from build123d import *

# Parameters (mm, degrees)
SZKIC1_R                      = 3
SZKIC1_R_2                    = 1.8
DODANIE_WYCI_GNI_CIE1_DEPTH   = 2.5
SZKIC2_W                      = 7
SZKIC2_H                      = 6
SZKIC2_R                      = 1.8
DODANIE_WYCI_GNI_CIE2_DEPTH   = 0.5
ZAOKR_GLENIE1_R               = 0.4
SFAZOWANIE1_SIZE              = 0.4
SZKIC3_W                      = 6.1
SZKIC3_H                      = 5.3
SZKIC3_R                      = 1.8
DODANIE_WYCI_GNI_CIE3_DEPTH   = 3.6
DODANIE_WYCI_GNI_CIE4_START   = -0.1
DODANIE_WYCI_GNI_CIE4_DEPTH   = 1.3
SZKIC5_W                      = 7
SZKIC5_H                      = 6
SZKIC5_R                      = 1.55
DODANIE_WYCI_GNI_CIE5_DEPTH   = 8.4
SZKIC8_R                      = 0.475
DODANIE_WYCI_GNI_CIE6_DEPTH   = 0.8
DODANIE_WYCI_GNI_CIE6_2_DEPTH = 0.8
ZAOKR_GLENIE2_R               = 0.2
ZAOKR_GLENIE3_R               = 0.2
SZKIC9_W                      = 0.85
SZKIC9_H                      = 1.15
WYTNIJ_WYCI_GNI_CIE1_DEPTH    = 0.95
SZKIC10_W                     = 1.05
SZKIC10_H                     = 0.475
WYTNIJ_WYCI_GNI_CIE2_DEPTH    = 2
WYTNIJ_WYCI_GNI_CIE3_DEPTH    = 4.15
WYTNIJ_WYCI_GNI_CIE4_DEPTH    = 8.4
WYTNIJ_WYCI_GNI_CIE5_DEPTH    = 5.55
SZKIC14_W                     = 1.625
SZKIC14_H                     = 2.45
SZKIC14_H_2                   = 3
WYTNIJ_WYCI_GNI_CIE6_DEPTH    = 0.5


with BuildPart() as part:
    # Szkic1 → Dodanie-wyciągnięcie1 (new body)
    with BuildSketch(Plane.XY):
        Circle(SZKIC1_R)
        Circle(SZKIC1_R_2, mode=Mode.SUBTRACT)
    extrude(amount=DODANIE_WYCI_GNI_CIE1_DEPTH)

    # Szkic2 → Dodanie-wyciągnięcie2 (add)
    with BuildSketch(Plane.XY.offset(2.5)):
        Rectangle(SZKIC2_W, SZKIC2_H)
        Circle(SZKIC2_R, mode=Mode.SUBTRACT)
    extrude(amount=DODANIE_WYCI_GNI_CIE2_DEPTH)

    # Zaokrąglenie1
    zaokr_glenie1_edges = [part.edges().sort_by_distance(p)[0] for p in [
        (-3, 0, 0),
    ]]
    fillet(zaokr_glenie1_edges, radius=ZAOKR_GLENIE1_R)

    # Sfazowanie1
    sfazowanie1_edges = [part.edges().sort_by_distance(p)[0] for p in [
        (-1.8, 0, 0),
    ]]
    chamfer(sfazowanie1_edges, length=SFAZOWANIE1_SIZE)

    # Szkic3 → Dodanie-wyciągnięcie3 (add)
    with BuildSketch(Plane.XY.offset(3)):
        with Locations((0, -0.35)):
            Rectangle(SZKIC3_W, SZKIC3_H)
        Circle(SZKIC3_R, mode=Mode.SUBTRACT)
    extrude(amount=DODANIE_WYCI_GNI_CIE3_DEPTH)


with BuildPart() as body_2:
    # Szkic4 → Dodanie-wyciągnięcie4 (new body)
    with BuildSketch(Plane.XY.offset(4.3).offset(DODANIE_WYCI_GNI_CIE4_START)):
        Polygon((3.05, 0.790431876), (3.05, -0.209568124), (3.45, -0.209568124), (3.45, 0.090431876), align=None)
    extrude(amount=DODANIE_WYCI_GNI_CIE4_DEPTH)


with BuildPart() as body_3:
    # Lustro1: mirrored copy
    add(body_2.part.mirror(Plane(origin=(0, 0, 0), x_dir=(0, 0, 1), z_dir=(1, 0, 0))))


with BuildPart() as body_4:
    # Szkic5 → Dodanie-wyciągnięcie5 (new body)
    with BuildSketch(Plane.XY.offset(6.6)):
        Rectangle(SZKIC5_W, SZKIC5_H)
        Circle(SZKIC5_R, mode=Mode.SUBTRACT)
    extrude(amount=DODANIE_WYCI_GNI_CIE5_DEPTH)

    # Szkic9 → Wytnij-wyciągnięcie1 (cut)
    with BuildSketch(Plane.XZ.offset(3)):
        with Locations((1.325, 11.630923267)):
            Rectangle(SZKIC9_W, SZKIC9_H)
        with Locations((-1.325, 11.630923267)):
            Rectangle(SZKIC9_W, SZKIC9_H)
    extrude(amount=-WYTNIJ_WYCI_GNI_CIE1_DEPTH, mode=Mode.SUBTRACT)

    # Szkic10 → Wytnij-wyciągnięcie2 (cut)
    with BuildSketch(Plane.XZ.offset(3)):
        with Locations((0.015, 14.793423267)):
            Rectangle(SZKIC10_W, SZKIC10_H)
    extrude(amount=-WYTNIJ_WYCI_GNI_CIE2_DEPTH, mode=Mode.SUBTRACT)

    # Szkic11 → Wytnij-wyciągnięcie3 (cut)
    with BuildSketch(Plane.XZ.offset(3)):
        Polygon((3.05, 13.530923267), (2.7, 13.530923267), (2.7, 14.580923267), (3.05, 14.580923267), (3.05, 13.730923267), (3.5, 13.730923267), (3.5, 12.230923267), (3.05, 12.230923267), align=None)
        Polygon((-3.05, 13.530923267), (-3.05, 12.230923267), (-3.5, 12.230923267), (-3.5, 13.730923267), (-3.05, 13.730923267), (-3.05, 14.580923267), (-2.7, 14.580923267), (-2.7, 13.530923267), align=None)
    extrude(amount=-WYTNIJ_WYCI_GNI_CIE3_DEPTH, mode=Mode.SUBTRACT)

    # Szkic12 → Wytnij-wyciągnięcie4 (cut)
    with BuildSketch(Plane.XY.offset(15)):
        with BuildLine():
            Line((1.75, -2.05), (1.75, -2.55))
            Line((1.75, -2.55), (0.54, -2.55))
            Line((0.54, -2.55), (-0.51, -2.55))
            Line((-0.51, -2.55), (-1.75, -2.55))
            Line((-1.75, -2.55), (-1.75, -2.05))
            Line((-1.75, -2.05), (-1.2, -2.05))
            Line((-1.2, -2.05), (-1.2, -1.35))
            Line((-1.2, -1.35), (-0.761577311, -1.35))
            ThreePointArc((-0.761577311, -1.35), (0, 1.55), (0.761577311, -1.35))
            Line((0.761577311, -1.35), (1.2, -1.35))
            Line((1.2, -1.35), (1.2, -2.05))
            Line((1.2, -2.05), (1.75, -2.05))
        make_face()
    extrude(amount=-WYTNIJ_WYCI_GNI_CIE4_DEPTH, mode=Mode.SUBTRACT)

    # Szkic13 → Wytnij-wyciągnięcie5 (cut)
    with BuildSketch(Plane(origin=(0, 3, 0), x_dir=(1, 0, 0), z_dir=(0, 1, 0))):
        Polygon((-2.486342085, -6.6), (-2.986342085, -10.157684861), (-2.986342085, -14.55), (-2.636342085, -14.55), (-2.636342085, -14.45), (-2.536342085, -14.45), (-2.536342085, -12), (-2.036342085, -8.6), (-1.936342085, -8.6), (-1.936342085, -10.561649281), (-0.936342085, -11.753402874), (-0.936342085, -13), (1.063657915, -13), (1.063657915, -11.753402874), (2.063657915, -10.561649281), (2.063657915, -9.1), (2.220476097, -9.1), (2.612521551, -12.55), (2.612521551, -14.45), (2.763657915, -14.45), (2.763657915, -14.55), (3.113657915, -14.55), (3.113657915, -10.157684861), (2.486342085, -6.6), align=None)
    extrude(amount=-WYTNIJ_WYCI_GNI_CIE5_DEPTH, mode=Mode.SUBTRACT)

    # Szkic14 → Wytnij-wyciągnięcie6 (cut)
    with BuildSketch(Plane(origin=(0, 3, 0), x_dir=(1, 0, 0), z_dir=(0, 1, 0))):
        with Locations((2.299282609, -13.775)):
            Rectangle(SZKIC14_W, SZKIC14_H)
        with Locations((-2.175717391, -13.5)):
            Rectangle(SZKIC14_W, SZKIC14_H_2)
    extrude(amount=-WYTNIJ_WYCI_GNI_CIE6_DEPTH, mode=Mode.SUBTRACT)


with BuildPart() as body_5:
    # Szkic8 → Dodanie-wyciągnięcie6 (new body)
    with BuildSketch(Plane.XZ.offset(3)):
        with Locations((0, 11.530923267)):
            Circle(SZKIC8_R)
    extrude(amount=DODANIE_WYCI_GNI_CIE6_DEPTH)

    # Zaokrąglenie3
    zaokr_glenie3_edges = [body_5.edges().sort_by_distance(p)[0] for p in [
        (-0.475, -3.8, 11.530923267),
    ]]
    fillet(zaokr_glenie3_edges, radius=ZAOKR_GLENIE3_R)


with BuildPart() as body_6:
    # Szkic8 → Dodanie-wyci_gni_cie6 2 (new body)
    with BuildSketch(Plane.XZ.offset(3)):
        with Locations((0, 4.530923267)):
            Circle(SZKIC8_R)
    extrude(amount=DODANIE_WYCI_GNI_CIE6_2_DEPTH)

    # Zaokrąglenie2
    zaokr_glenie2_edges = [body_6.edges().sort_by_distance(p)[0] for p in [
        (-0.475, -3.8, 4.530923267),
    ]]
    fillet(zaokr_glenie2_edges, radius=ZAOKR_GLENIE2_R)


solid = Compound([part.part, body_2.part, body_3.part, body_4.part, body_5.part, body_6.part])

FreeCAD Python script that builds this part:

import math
import FreeCAD as App
import Part
import Sketcher
Q = App.Units.Quantity


def edges_at(feature, points):
    """Names of the edges that pass closest to the given points."""
    edges = feature.Shape.Edges
    near = lambda p: min(range(len(edges)), key=lambda i: edges[i].distToShape(Part.Vertex(*p))[0])
    return sorted({f"Edge{near(p) + 1}" for p in points})

doc = App.newDocument("Part")
params = doc.addObject("Spreadsheet::Sheet", "Params")
for row, (alias, value) in enumerate([
    ("sketch1_diameter", "6 mm"),
    ("sketch1_diameter2", "3.6 mm"),
    ("pad1_length", "2.5 mm"),
    ("sketch2_diameter", "3.6 mm"),
    ("sketch2_width", "7 mm"),
    ("sketch2_height", "6 mm"),
    ("pad2_length", "0.5 mm"),
    ("fillet_radius", "0.4 mm"),
    ("chamfer_size", "0.4 mm"),
    ("sketch3_diameter", "3.6 mm"),
    ("sketch3_width", "6.1 mm"),
    ("sketch3_height", "5.3 mm"),
    ("pad3_length", "3.6 mm"),
    ("sketch4_height", "1 mm"),
    ("sketch4_width", "0.4 mm"),
    ("sketch4_height2", "0.3 mm"),
    ("pad4_length", "1.3 mm"),
    ("sketch5_diameter", "3.1 mm"),
    ("sketch5_width", "7 mm"),
    ("sketch5_height", "6 mm"),
    ("pad5_length", "8.4 mm"),
    ("sketch6_width", "0.85 mm"),
    ("sketch6_height", "1.15 mm"),
    ("pocket1_length", "0.95 mm"),
    ("sketch7_width", "1.05 mm"),
    ("pocket2_length", "2 mm"),
    ("sketch8_height", "1.3 mm"),
    ("sketch8_height2", "1.5 mm"),
    ("sketch8_width", "0.35 mm"),
    ("sketch8_width2", "0.45 mm"),
    ("sketch8_height3", "0.85 mm"),
    ("pocket3_length", "4.15 mm"),
    ("sketch9_radius", "1.55 mm"),
    ("sketch9_width", "3.5 mm"),
    ("sketch9_height", "0.5 mm"),
    ("sketch9_height2", "0.7 mm"),
    ("sketch9_width2", "0.55 mm"),
    ("pocket4_length", "8.4 mm"),
    ("sketch10_width", "2 mm"),
    ("sketch10_width2", "0.1 mm"),
    ("sketch10_height", "1.9 mm"),
    ("sketch10_width3", "0.35 mm"),
    ("sketch10_height2", "2.45 mm"),
    ("pocket5_length", "5.55 mm"),
    ("sketch11_height", "3 mm"),
    ("sketch11_height2", "2.45 mm"),
    ("pocket6_length", "0.5 mm"),
    ("sketch12_diameter", "0.95 mm"),
    ("pad6_length", "0.8 mm"),
    ("fillet2_radius", "0.2 mm"),
    ("sketch13_diameter", "0.95 mm"),
    ("pad7_length", "0.8 mm"),
    ("fillet3_radius", "0.2 mm"),
], start=1):
    params.set(f"A{row}", alias)
    params.set(f"B{row}", "=" + value)
    params.setAlias(f"B{row}", alias)

body = doc.addObject("PartDesign::Body", "Body")

sketch1 = body.newObject("Sketcher::SketchObject", "Sketch")
sketch1.AttachmentSupport = (doc.getObject("XY_Plane"), [""])
sketch1.MapMode = "FlatFace"
sketch1.addGeometry([
    Part.Circle(App.Vector(0, 0, 0), App.Vector(0, 0, 1), 3),
    Part.Circle(App.Vector(0, 0, 0), App.Vector(0, 0, 1), 1.8),
], False)
sketch1.addConstraint([
    Sketcher.Constraint("Coincident", 0, 3, -1, 1),
    Sketcher.Constraint("Coincident", 1, 3, -1, 1),
    Sketcher.Constraint("Diameter", 0, 6.0),
    Sketcher.Constraint("Diameter", 1, 3.6),
])
sketch1.setExpression("Constraints[2]", "Params.sketch1_diameter")
sketch1.setExpression("Constraints[3]", "Params.sketch1_diameter2")
pad1 = body.newObject("PartDesign::Pad", "Pad")
pad1.Profile = sketch1
pad1.setExpression("Length", "Params.pad1_length")

sketch2 = body.newObject("Sketcher::SketchObject", "Sketch001")
sketch2.AttachmentSupport = (doc.getObject("XY_Plane"), [""])
sketch2.MapMode = "FlatFace"
sketch2.AttachmentOffset = App.Placement(App.Vector(0, 0, 2.5), App.Rotation())
sketch2.addGeometry([
    Part.LineSegment(App.Vector(-3.5, 3, 0), App.Vector(-3.5, -3, 0)),
    Part.LineSegment(App.Vector(-3.5, -3, 0), App.Vector(3.5, -3, 0)),
    Part.LineSegment(App.Vector(3.5, -3, 0), App.Vector(3.5, 3, 0)),
    Part.LineSegment(App.Vector(3.5, 3, 0), App.Vector(-3.5, 3, 0)),
    Part.Circle(App.Vector(0, 0, 0), App.Vector(0, 0, 1), 1.8),
], False)
sketch2.addConstraint([
    Sketcher.Constraint("Coincident", 0, 2, 1, 1),
    Sketcher.Constraint("Coincident", 1, 2, 2, 1),
    Sketcher.Constraint("Coincident", 2, 2, 3, 1),
    Sketcher.Constraint("Coincident", 3, 2, 0, 1),
    Sketcher.Constraint("Vertical", 0),
    Sketcher.Constraint("Horizontal", 1),
    Sketcher.Constraint("Vertical", 2),
    Sketcher.Constraint("Horizontal", 3),
    Sketcher.Constraint("Coincident", 4, 3, -1, 1),
    Sketcher.Constraint("Symmetric", 0, 2, 2, 2, -1, 1),
    Sketcher.Constraint("Diameter", 4, 3.6),
    Sketcher.Constraint("DistanceX", 1, 1, 1, 2, 7.0),
    Sketcher.Constraint("DistanceY", 0, 2, 0, 1, 6.0),
])
sketch2.setExpression("Constraints[10]", "Params.sketch2_diameter")
sketch2.setExpression("Constraints[11]", "Params.sketch2_width")
sketch2.setExpression("Constraints[12]", "Params.sketch2_height")
pad2 = body.newObject("PartDesign::Pad", "Pad001")
pad2.Profile = sketch2
pad2.setExpression("Length", "Params.pad2_length")
doc.recompute()

fillet = body.newObject("PartDesign::Fillet", "Fillet")
fillet.Base = (pad2, edges_at(pad2, [(-3, 0, 0)]))
fillet.setExpression("Radius", "Params.fillet_radius")
doc.recompute()

chamfer = body.newObject("PartDesign::Chamfer", "Chamfer")
chamfer.Base = (fillet, edges_at(fillet, [(-1.8, 0, 0)]))
chamfer.setExpression("Size", "Params.chamfer_size")

sketch3 = body.newObject("Sketcher::SketchObject", "Sketch002")
sketch3.AttachmentSupport = (doc.getObject("XY_Plane"), [""])
sketch3.MapMode = "FlatFace"
sketch3.AttachmentOffset = App.Placement(App.Vector(0, 0, 3), App.Rotation())
sketch3.addGeometry([
    Part.LineSegment(App.Vector(-3, 2.3, 0), App.Vector(-3, -3, 0)),
    Part.LineSegment(App.Vector(-3, -3, 0), App.Vector(3, -3, 0)),
    Part.LineSegment(App.Vector(3, -3, 0), App.Vector(3, 2.3, 0)),
    Part.LineSegment(App.Vector(3, 2.3, 0), App.Vector(-3, 2.3, 0)),
    Part.Circle(App.Vector(0, 0, 0), App.Vector(0, 0, 1), 1.8),
], False)
sketch3.addConstraint([
    Sketcher.Constraint("Coincident", 0, 2, 1, 1),
    Sketcher.Constraint("Coincident", 1, 2, 2, 1),
    Sketcher.Constraint("Coincident", 2, 2, 3, 1),
    Sketcher.Constraint("Coincident", 3, 2, 0, 1),
    Sketcher.Constraint("Vertical", 0),
    Sketcher.Constraint("Horizontal", 1),
    Sketcher.Constraint("Vertical", 2),
    Sketcher.Constraint("Horizontal", 3),
    Sketcher.Constraint("Coincident", 4, 3, -1, 1),
    Sketcher.Constraint("Diameter", 4, 3.6),
    Sketcher.Constraint("DistanceX", 1, 1, 1, 2, 6.1),
    Sketcher.Constraint("DistanceY", 0, 2, 0, 1, 5.3),
    Sketcher.Constraint("DistanceY", 0, 2, -1, 1, 3.0),
    Sketcher.Constraint("DistanceX", 0, 2, -1, 1, 3.05),
])
sketch3.setExpression("Constraints[9]", "Params.sketch3_diameter")
sketch3.setExpression("Constraints[10]", "Params.sketch3_width")
sketch3.setExpression("Constraints[11]", "Params.sketch3_height")
pad3 = body.newObject("PartDesign::Pad", "Pad002")
pad3.Profile = sketch3
pad3.setExpression("Length", "Params.pad3_length")
body2 = doc.addObject("PartDesign::Body", "Body001")

sketch4 = body2.newObject("Sketcher::SketchObject", "Sketch003")
sketch4.AttachmentSupport = (doc.getObject("XY_Plane001"), [""])
sketch4.MapMode = "FlatFace"
sketch4.AttachmentOffset = App.Placement(App.Vector(0, 0, 4.2), App.Rotation())
sketch4.addGeometry([
    Part.LineSegment(App.Vector(3.05, 0.79, 0), App.Vector(3.05, -0.21, 0)),
    Part.LineSegment(App.Vector(3.05, -0.21, 0), App.Vector(3.45, -0.21, 0)),
    Part.LineSegment(App.Vector(3.45, -0.21, 0), App.Vector(3.45, 0.09, 0)),
    Part.LineSegment(App.Vector(3.45, 0.09, 0), App.Vector(3.05, 0.79, 0)),
], False)
sketch4.addConstraint([
    Sketcher.Constraint("Coincident", 0, 2, 1, 1),
    Sketcher.Constraint("Coincident", 1, 2, 2, 1),
    Sketcher.Constraint("Coincident", 2, 2, 3, 1),
    Sketcher.Constraint("Coincident", 3, 2, 0, 1),
    Sketcher.Constraint("Vertical", 0),
    Sketcher.Constraint("Horizontal", 1),
    Sketcher.Constraint("Vertical", 2),
    Sketcher.Constraint("DistanceY", 0, 2, 0, 1, 1.0),
    Sketcher.Constraint("DistanceX", 1, 1, 1, 2, 0.4),
    Sketcher.Constraint("DistanceY", 2, 1, 2, 2, 0.3),
    Sketcher.Constraint("DistanceX", -1, 1, 0, 2, 3.05),
    Sketcher.Constraint("DistanceY", 0, 2, -1, 1, 0.209568),
])
sketch4.setExpression("Constraints[7]", "Params.sketch4_height")
sketch4.setExpression("Constraints[8]", "Params.sketch4_width")
sketch4.setExpression("Constraints[9]", "Params.sketch4_height2")
pad4 = body2.newObject("PartDesign::Pad", "Pad003")
pad4.Profile = sketch4
pad4.setExpression("Length", "Params.pad4_length")
body3 = doc.addObject("PartDesign::Body", "Body002")
doc.recompute()

mirroring = doc.addObject("Part::Mirroring", "Mirroring")
mirroring.Source = body2
mirroring.Base = App.Vector(0, 0, 0)
mirroring.Normal = App.Vector(1, 0, 0)
body3.BaseFeature = mirroring
doc.recompute()
body4 = doc.addObject("PartDesign::Body", "Body003")

sketch5 = body4.newObject("Sketcher::SketchObject", "Sketch004")
sketch5.AttachmentSupport = (doc.getObject("XY_Plane003"), [""])
sketch5.MapMode = "FlatFace"
sketch5.AttachmentOffset = App.Placement(App.Vector(0, 0, 6.6), App.Rotation())
sketch5.addGeometry([
    Part.LineSegment(App.Vector(-3.5, 3, 0), App.Vector(-3.5, -3, 0)),
    Part.LineSegment(App.Vector(-3.5, -3, 0), App.Vector(3.5, -3, 0)),
    Part.LineSegment(App.Vector(3.5, -3, 0), App.Vector(3.5, 3, 0)),
    Part.LineSegment(App.Vector(3.5, 3, 0), App.Vector(-3.5, 3, 0)),
    Part.Circle(App.Vector(0, 0, 0), App.Vector(0, 0, 1), 1.6),
], False)
sketch5.addConstraint([
    Sketcher.Constraint("Coincident", 0, 2, 1, 1),
    Sketcher.Constraint("Coincident", 1, 2, 2, 1),
    Sketcher.Constraint("Coincident", 2, 2, 3, 1),
    Sketcher.Constraint("Coincident", 3, 2, 0, 1),
    Sketcher.Constraint("Vertical", 0),
    Sketcher.Constraint("Horizontal", 1),
    Sketcher.Constraint("Vertical", 2),
    Sketcher.Constraint("Horizontal", 3),
    Sketcher.Constraint("Coincident", 4, 3, -1, 1),
    Sketcher.Constraint("Symmetric", 0, 2, 2, 2, -1, 1),
    Sketcher.Constraint("Diameter", 4, 3.1),
    Sketcher.Constraint("DistanceX", 1, 1, 1, 2, 7.0),
    Sketcher.Constraint("DistanceY", 0, 2, 0, 1, 6.0),
])
sketch5.setExpression("Constraints[10]", "Params.sketch5_diameter")
sketch5.setExpression("Constraints[11]", "Params.sketch5_width")
sketch5.setExpression("Constraints[12]", "Params.sketch5_height")
pad5 = body4.newObject("PartDesign::Pad", "Pad004")
pad5.Profile = sketch5
pad5.setExpression("Length", "Params.pad5_length")

sketch6 = body4.newObject("Sketcher::SketchObject", "Sketch005")
sketch6.AttachmentSupport = (doc.getObject("XZ_Plane003"), [""])
sketch6.MapMode = "FlatFace"
sketch6.AttachmentOffset = App.Placement(App.Vector(0, 0, 3), App.Rotation())
sketch6.addGeometry([
    Part.LineSegment(App.Vector(0.9, 12.2, 0), App.Vector(0.9, 11.1, 0)),
    Part.LineSegment(App.Vector(0.9, 11.1, 0), App.Vector(1.8, 11.1, 0)),
    Part.LineSegment(App.Vector(1.8, 11.1, 0), App.Vector(1.8, 12.2, 0)),
    Part.LineSegment(App.Vector(1.8, 12.2, 0), App.Vector(0.9, 12.2, 0)),
    Part.LineSegment(App.Vector(-1.8, 12.2, 0), App.Vector(-1.8, 11.1, 0)),
    Part.LineSegment(App.Vector(-1.8, 11.1, 0), App.Vector(-0.9, 11.1, 0)),
    Part.LineSegment(App.Vector(-0.9, 11.1, 0), App.Vector(-0.9, 12.2, 0)),
    Part.LineSegment(App.Vector(-0.9, 12.2, 0), App.Vector(-1.8, 12.2, 0)),
], False)
sketch6.addConstraint([
    Sketcher.Constraint("Coincident", 0, 2, 1, 1),
    Sketcher.Constraint("Coincident", 1, 2, 2, 1),
    Sketcher.Constraint("Coincident", 2, 2, 3, 1),
    Sketcher.Constraint("Coincident", 3, 2, 0, 1),
    Sketcher.Constraint("Coincident", 4, 2, 5, 1),
    Sketcher.Constraint("Coincident", 5, 2, 6, 1),
    Sketcher.Constraint("Coincident", 6, 2, 7, 1),
    Sketcher.Constraint("Coincident", 7, 2, 4, 1),
    Sketcher.Constraint("Vertical", 0),
    Sketcher.Constraint("Horizontal", 1),
    Sketcher.Constraint("Vertical", 2),
    Sketcher.Constraint("Horizontal", 3),
    Sketcher.Constraint("Vertical", 4),
    Sketcher.Constraint("Horizontal", 5),
    Sketcher.Constraint("Vertical", 6),
    Sketcher.Constraint("Horizontal", 7),
    Sketcher.Constraint("Symmetric", 1, 2, 4, 2, -2),
    Sketcher.Constraint("Symmetric", 3, 2, 6, 2, -2),
    Sketcher.Constraint("DistanceX", 1, 1, 1, 2, 0.85),
    Sketcher.Constraint("DistanceY", 0, 2, 0, 1, 1.15),
    Sketcher.Constraint("DistanceX", -1, 1, 0, 2, 0.9),
    Sketcher.Constraint("DistanceY", -1, 1, 0, 2, 11.055923),
])
sketch6.setExpression("Constraints[18]", "Params.sketch6_width")
sketch6.setExpression("Constraints[19]", "Params.sketch6_height")
pocket1 = body4.newObject("PartDesign::Pocket", "Pocket")
pocket1.Profile = sketch6
pocket1.setExpression("Length", "Params.pocket1_length")

sketch7 = body4.newObject("Sketcher::SketchObject", "Sketch006")
sketch7.AttachmentSupport = (doc.getObject("XZ_Plane003"), [""])
sketch7.MapMode = "FlatFace"
sketch7.AttachmentOffset = App.Placement(App.Vector(0, 0, 3), App.Rotation())
sketch7.addGeometry([
    Part.LineSegment(App.Vector(-0.51, 15.03, 0), App.Vector(-0.51, 14.56, 0)),
    Part.LineSegment(App.Vector(-0.51, 14.56, 0), App.Vector(0.54, 14.56, 0)),
    Part.LineSegment(App.Vector(0.54, 14.56, 0), App.Vector(0.54, 15.03, 0)),
    Part.LineSegment(App.Vector(0.54, 15.03, 0), App.Vector(-0.51, 15.03, 0)),
], False)
sketch7.addConstraint([
    Sketcher.Constraint("Coincident", 0, 2, 1, 1),
    Sketcher.Constraint("Coincident", 1, 2, 2, 1),
    Sketcher.Constraint("Coincident", 2, 2, 3, 1),
    Sketcher.Constraint("Coincident", 3, 2, 0, 1),
    Sketcher.Constraint("Vertical", 0),
    Sketcher.Constraint("Horizontal", 1),
    Sketcher.Constraint("Vertical", 2),
    Sketcher.Constraint("Horizontal", 3),
    Sketcher.Constraint("DistanceX", 1, 1, 1, 2, 1.05),
    Sketcher.Constraint("DistanceY", 0, 2, 0, 1, 0.475),
    Sketcher.Constraint("DistanceX", 0, 2, -1, 1, 0.51),
    Sketcher.Constraint("DistanceY", -1, 1, 0, 2, 14.555923),
])
sketch7.setExpression("Constraints[8]", "Params.sketch7_width")
pocket2 = body4.newObject("PartDesign::Pocket", "Pocket001")
pocket2.Profile = sketch7
pocket2.setExpression("Length", "Params.pocket2_length")

sketch8 = body4.newObject("Sketcher::SketchObject", "Sketch007")
sketch8.AttachmentSupport = (doc.getObject("XZ_Plane003"), [""])
sketch8.MapMode = "FlatFace"
sketch8.AttachmentOffset = App.Placement(App.Vector(0, 0, 3), App.Rotation())
sketch8.addGeometry([
    Part.LineSegment(App.Vector(2.7, 13.53, 0), App.Vector(3.05, 13.53, 0)),
    Part.LineSegment(App.Vector(3.05, 13.53, 0), App.Vector(3.05, 12.23, 0)),
    Part.LineSegment(App.Vector(3.05, 12.23, 0), App.Vector(3.5, 12.23, 0)),
    Part.LineSegment(App.Vector(3.5, 12.23, 0), App.Vector(3.5, 13.73, 0)),
    Part.LineSegment(App.Vector(3.5, 13.73, 0), App.Vector(3.05, 13.73, 0)),
    Part.LineSegment(App.Vector(3.05, 13.73, 0), App.Vector(3.05, 14.58, 0)),
    Part.LineSegment(App.Vector(3.05, 14.58, 0), App.Vector(2.7, 14.58, 0)),
    Part.LineSegment(App.Vector(2.7, 14.58, 0), App.Vector(2.7, 13.53, 0)),
    Part.LineSegment(App.Vector(-3.05, 12.23, 0), App.Vector(-3.05, 13.53, 0)),
    Part.LineSegment(App.Vector(-3.05, 13.53, 0), App.Vector(-2.7, 13.53, 0)),
    Part.LineSegment(App.Vector(-2.7, 13.53, 0), App.Vector(-2.7, 14.58, 0)),
    Part.LineSegment(App.Vector(-2.7, 14.58, 0), App.Vector(-3.05, 14.58, 0)),
    Part.LineSegment(App.Vector(-3.05, 14.58, 0), App.Vector(-3.05, 13.73, 0)),
    Part.LineSegment(App.Vector(-3.05, 13.73, 0), App.Vector(-3.5, 13.73, 0)),
    Part.LineSegment(App.Vector(-3.5, 13.73, 0), App.Vector(-3.5, 12.23, 0)),
    Part.LineSegment(App.Vector(-3.5, 12.23, 0), App.Vector(-3.05, 12.23, 0)),
], False)
sketch8.addConstraint([
    Sketcher.Constraint("Coincident", 0, 2, 1, 1),
    Sketcher.Constraint("Coincident", 1, 2, 2, 1),
    Sketcher.Constraint("Coincident", 2, 2, 3, 1),
    Sketcher.Constraint("Coincident", 3, 2, 4, 1),
    Sketcher.Constraint("Coincident", 4, 2, 5, 1),
    Sketcher.Constraint("Coincident", 5, 2, 6, 1),
    Sketcher.Constraint("Coincident", 6, 2, 7, 1),
    Sketcher.Constraint("Coincident", 7, 2, 0, 1),
    Sketcher.Constraint("Coincident", 8, 2, 9, 1),
    Sketcher.Constraint("Coincident", 9, 2, 10, 1),
    Sketcher.Constraint("Coincident", 10, 2, 11, 1),
    Sketcher.Constraint("Coincident", 11, 2, 12, 1),
    Sketcher.Constraint("Coincident", 12, 2, 13, 1),
    Sketcher.Constraint("Coincident", 13, 2, 14, 1),
    Sketcher.Constraint("Coincident", 14, 2, 15, 1),
    Sketcher.Constraint("Coincident", 15, 2, 8, 1),
    Sketcher.Constraint("Horizontal", 0),
    Sketcher.Constraint("Vertical", 1),
    Sketcher.Constraint("Horizontal", 2),
    Sketcher.Constraint("Vertical", 3),
    Sketcher.Constraint("Horizontal", 4),
    Sketcher.Constraint("Vertical", 5),
    Sketcher.Constraint("Horizontal", 6),
    Sketcher.Constraint("Vertical", 7),
    Sketcher.Constraint("Vertical", 8),
    Sketcher.Constraint("Horizontal", 9),
    Sketcher.Constraint("Vertical", 10),
    Sketcher.Constraint("Horizontal", 11),
    Sketcher.Constraint("Vertical", 12),
    Sketcher.Constraint("Horizontal", 13),
    Sketcher.Constraint("Vertical", 14),
    Sketcher.Constraint("Horizontal", 15),
    Sketcher.Constraint("Symmetric", 0, 2, 8, 2, -2),
    Sketcher.Constraint("Symmetric", 6, 2, 10, 2, -2),
    Sketcher.Constraint("Symmetric", 4, 2, 12, 2, -2),
    Sketcher.Constraint("Symmetric", 2, 2, 14, 2, -2),
    Sketcher.Constraint("Vertical", 1, 2, 4, 2),
    Sketcher.Constraint("DistanceY", 1, 2, 1, 1, 1.3),
    Sketcher.Constraint("DistanceY", 3, 1, 3, 2, 1.5),
    Sketcher.Constraint("DistanceX", 0, 1, 0, 2, 0.35),
    Sketcher.Constraint("DistanceX", 2, 1, 2, 2, 0.45),
    Sketcher.Constraint("DistanceY", 5, 1, 5, 2, 0.85),
    Sketcher.Constraint("DistanceX", -1, 1, 2, 2, 3.5),
    Sketcher.Constraint("DistanceY", -1, 1, 0, 2, 13.530923),
])
sketch8.setExpression("Constraints[37]", "Params.sketch8_height")
sketch8.setExpression("Constraints[38]", "Params.sketch8_height2")
sketch8.setExpression("Constraints[39]", "Params.sketch8_width")
sketch8.setExpression("Constraints[40]", "Params.sketch8_width2")
sketch8.setExpression("Constraints[41]", "Params.sketch8_height3")
pocket3 = body4.newObject("PartDesign::Pocket", "Pocket002")
pocket3.Profile = sketch8
pocket3.setExpression("Length", "Params.pocket3_length")

sketch9 = body4.newObject("Sketcher::SketchObject", "Sketch008")
sketch9.AttachmentSupport = (doc.getObject("XY_Plane003"), [""])
sketch9.MapMode = "FlatFace"
sketch9.AttachmentOffset = App.Placement(App.Vector(0, 0, 15), App.Rotation())
sketch9.addGeometry([
    Part.LineSegment(App.Vector(1.75, -2.55, 0), App.Vector(1.75, -2.05, 0)),
    Part.LineSegment(App.Vector(1.75, -2.05, 0), App.Vector(1.2, -2.05, 0)),
    Part.LineSegment(App.Vector(1.2, -2.05, 0), App.Vector(1.2, -1.35, 0)),
    Part.LineSegment(App.Vector(1.2, -1.35, 0), App.Vector(0.76, -1.35, 0)),
    Part.ArcOfCircle(Part.Circle(App.Vector(0, 0, 0), App.Vector(0, 0, 1), 1.55), math.radians(-61), math.radians(241)),
    Part.LineSegment(App.Vector(-0.76, -1.35, 0), App.Vector(-1.2, -1.35, 0)),
    Part.LineSegment(App.Vector(-1.2, -1.35, 0), App.Vector(-1.2, -2.05, 0)),
    Part.LineSegment(App.Vector(-1.2, -2.05, 0), App.Vector(-1.75, -2.05, 0)),
    Part.LineSegment(App.Vector(-1.75, -2.05, 0), App.Vector(-1.75, -2.55, 0)),
    Part.LineSegment(App.Vector(-1.75, -2.55, 0), App.Vector(1.75, -2.55, 0)),
], False)
sketch9.addConstraint([
    Sketcher.Constraint("Coincident", 0, 2, 1, 1),
    Sketcher.Constraint("Coincident", 1, 2, 2, 1),
    Sketcher.Constraint("Coincident", 2, 2, 3, 1),
    Sketcher.Constraint("Coincident", 3, 2, 4, 1),
    Sketcher.Constraint("Coincident", 4, 2, 5, 1),
    Sketcher.Constraint("Coincident", 5, 2, 6, 1),
    Sketcher.Constraint("Coincident", 6, 2, 7, 1),
    Sketcher.Constraint("Coincident", 7, 2, 8, 1),
    Sketcher.Constraint("Coincident", 8, 2, 9, 1),
    Sketcher.Constraint("Coincident", 9, 2, 0, 1),
    Sketcher.Constraint("Vertical", 0),
    Sketcher.Constraint("Horizontal", 1),
    Sketcher.Constraint("Vertical", 2),
    Sketcher.Constraint("Horizontal", 3),
    Sketcher.Constraint("Horizontal", 5),
    Sketcher.Constraint("Vertical", 6),
    Sketcher.Constraint("Horizontal", 7),
    Sketcher.Constraint("Vertical", 8),
    Sketcher.Constraint("Horizontal", 9),
    Sketcher.Constraint("Coincident", 4, 3, -1, 1),
    Sketcher.Constraint("Symmetric", 2, 2, 5, 2, -2),
    Sketcher.Constraint("Symmetric", 0, 2, 7, 2, -2),
    Sketcher.Constraint("Radius", 4, 1.55),
    Sketcher.Constraint("DistanceX", 9, 1, 9, 2, 3.5),
    Sketcher.Constraint("DistanceY", 0, 1, 0, 2, 0.5),
    Sketcher.Constraint("DistanceY", 2, 1, 2, 2, 0.7),
    Sketcher.Constraint("DistanceX", 1, 2, 1, 1, 0.55),
    Sketcher.Constraint("DistanceY", 0, 2, -1, 1, 2.05),
])
sketch9.setExpression("Constraints[22]", "Params.sketch9_radius")
sketch9.setExpression("Constraints[23]", "Params.sketch9_width")
sketch9.setExpression("Constraints[24]", "Params.sketch9_height")
sketch9.setExpression("Constraints[25]", "Params.sketch9_height2")
sketch9.setExpression("Constraints[26]", "Params.sketch9_width2")
pocket4 = body4.newObject("PartDesign::Pocket", "Pocket003")
pocket4.Profile = sketch9
pocket4.setExpression("Length", "Params.pocket4_length")

sketch10 = body4.newObject("Sketcher::SketchObject", "Sketch009")
sketch10.AttachmentSupport = (doc.getObject("XZ_Plane003"), [""])
sketch10.MapMode = "FlatFace"
sketch10.AttachmentOffset = App.Placement(App.Vector(0, 0, -3), App.Rotation())
sketch10.addGeometry([
    Part.LineSegment(App.Vector(-2.49, 6.6, 0), App.Vector(-2.99, 10.16, 0)),
    Part.LineSegment(App.Vector(-2.99, 10.16, 0), App.Vector(-2.99, 14.55, 0)),
    Part.LineSegment(App.Vector(-2.99, 14.55, 0), App.Vector(-2.64, 14.55, 0)),
    Part.LineSegment(App.Vector(-2.64, 14.55, 0), App.Vector(-2.64, 14.45, 0)),
    Part.LineSegment(App.Vector(-2.64, 14.45, 0), App.Vector(-2.54, 14.45, 0)),
    Part.LineSegment(App.Vector(-2.54, 14.45, 0), App.Vector(-2.54, 12, 0)),
    Part.LineSegment(App.Vector(-2.54, 12, 0), App.Vector(-2.04, 8.6, 0)),
    Part.LineSegment(App.Vector(-2.04, 8.6, 0), App.Vector(-1.94, 8.6, 0)),
    Part.LineSegment(App.Vector(-1.94, 8.6, 0), App.Vector(-1.94, 10.56, 0)),
    Part.LineSegment(App.Vector(-1.94, 10.56, 0), App.Vector(-0.94, 11.75, 0)),
    Part.LineSegment(App.Vector(-0.94, 11.75, 0), App.Vector(-0.94, 13, 0)),
    Part.LineSegment(App.Vector(-0.94, 13, 0), App.Vector(1.06, 13, 0)),
    Part.LineSegment(App.Vector(1.06, 13, 0), App.Vector(1.06, 11.75, 0)),
    Part.LineSegment(App.Vector(1.06, 11.75, 0), App.Vector(2.06, 10.56, 0)),
    Part.LineSegment(App.Vector(2.06, 10.56, 0), App.Vector(2.06, 9.1, 0)),
    Part.LineSegment(App.Vector(2.06, 9.1, 0), App.Vector(2.22, 9.1, 0)),
    Part.LineSegment(App.Vector(2.22, 9.1, 0), App.Vector(2.61, 12.55, 0)),
    Part.LineSegment(App.Vector(2.61, 12.55, 0), App.Vector(2.61, 14.45, 0)),
    Part.LineSegment(App.Vector(2.61, 14.45, 0), App.Vector(2.76, 14.45, 0)),
    Part.LineSegment(App.Vector(2.76, 14.45, 0), App.Vector(2.76, 14.55, 0)),
    Part.LineSegment(App.Vector(2.76, 14.55, 0), App.Vector(3.11, 14.55, 0)),
    Part.LineSegment(App.Vector(3.11, 14.55, 0), App.Vector(3.11, 10.16, 0)),
    Part.LineSegment(App.Vector(3.11, 10.16, 0), App.Vector(2.49, 6.6, 0)),
    Part.LineSegment(App.Vector(2.49, 6.6, 0), App.Vector(-2.49, 6.6, 0)),
], False)
sketch10.addConstraint([
    Sketcher.Constraint("Coincident", 0, 2, 1, 1),
    Sketcher.Constraint("Coincident", 1, 2, 2, 1),
    Sketcher.Constraint("Coincident", 2, 2, 3, 1),
    Sketcher.Constraint("Coincident", 3, 2, 4, 1),
    Sketcher.Constraint("Coincident", 4, 2, 5, 1),
    Sketcher.Constraint("Coincident", 5, 2, 6, 1),
    Sketcher.Constraint("Coincident", 6, 2, 7, 1),
    Sketcher.Constraint("Coincident", 7, 2, 8, 1),
    Sketcher.Constraint("Coincident", 8, 2, 9, 1),
    Sketcher.Constraint("Coincident", 9, 2, 10, 1),
    Sketcher.Constraint("Coincident", 10, 2, 11, 1),
    Sketcher.Constraint("Coincident", 11, 2, 12, 1),
    Sketcher.Constraint("Coincident", 12, 2, 13, 1),
    Sketcher.Constraint("Coincident", 13, 2, 14, 1),
    Sketcher.Constraint("Coincident", 14, 2, 15, 1),
    Sketcher.Constraint("Coincident", 15, 2, 16, 1),
    Sketcher.Constraint("Coincident", 16, 2, 17, 1),
    Sketcher.Constraint("Coincident", 17, 2, 18, 1),
    Sketcher.Constraint("Coincident", 18, 2, 19, 1),
    Sketcher.Constraint("Coincident", 19, 2, 20, 1),
    Sketcher.Constraint("Coincident", 20, 2, 21, 1),
    Sketcher.Constraint("Coincident", 21, 2, 22, 1),
    Sketcher.Constraint("Coincident", 22, 2, 23, 1),
    Sketcher.Constraint("Coincident", 23, 2, 0, 1),
    Sketcher.Constraint("Vertical", 1),
    Sketcher.Constraint("Horizontal", 2),
    Sketcher.Constraint("Vertical", 3),
    Sketcher.Constraint("Horizontal", 4),
    Sketcher.Constraint("Vertical", 5),
    Sketcher.Constraint("Horizontal", 7),
    Sketcher.Constraint("Vertical", 8),
    Sketcher.Constraint("Vertical", 10),
    Sketcher.Constraint("Horizontal", 11),
    Sketcher.Constraint("Vertical", 12),
    Sketcher.Constraint("Vertical", 14),
    Sketcher.Constraint("Horizontal", 15),
    Sketcher.Constraint("Vertical", 17),
    Sketcher.Constraint("Horizontal", 18),
    Sketcher.Constraint("Vertical", 19),
    Sketcher.Constraint("Horizontal", 20),
    Sketcher.Constraint("Vertical", 21),
    Sketcher.Constraint("Horizontal", 23),
    Sketcher.Constraint("Horizontal", 9, 2, 12, 2),
    Sketcher.Constraint("Horizontal", 8, 2, 13, 2),
    Sketcher.Constraint("Horizontal", 4, 2, 17, 2),
    Sketcher.Constraint("Horizontal", 2, 2, 19, 2),
    Sketcher.Constraint("Horizontal", 0, 2, 21, 2),
    Sketcher.Constraint("Equal", 4, 7),
    Sketcher.Constraint("Equal", 2, 20),
    Sketcher.Constraint("Equal", 7, 3),
    Sketcher.Constraint("Equal", 9, 13),
    Sketcher.Constraint("DistanceX", 11, 1, 11, 2, 2.0),
    Sketcher.Constraint("Angle", 0, Q("98 deg")),
    Sketcher.Constraint("Angle", 9, Q("50 deg")),
    Sketcher.Constraint("Angle", 22, Q("-100 deg")),
    Sketcher.Constraint("DistanceX", 4, 1, 4, 2, 0.1),
    Sketcher.Constraint("DistanceY", 17, 1, 17, 2, 1.9),
    Sketcher.Constraint("DistanceY", -1, 1, 5, 2, 12.0),
    Sketcher.Constraint("DistanceY", -1, 1, 10, 2, 13.0),
    Sketcher.Constraint("DistanceX", 8, 2, 9, 2, 1.0),
    Sketcher.Constraint("DistanceY", 22, 2, 7, 2, 2.0),
    Sketcher.Constraint("DistanceX", 2, 1, 2, 2, 0.35),
    Sketcher.Constraint("DistanceY", 5, 2, 5, 1, 2.45),
    Sketcher.Constraint("DistanceY", -1, 1, 6, 2, 8.6),
    Sketcher.Constraint("DistanceY", -1, 1, 14, 2, 9.1),
    Sketcher.Constraint("DistanceX", 5, 2, 6, 2, 0.5),
    Sketcher.Constraint("DistanceX", 11, 2, 18, 2, 1.7),
    Sketcher.Constraint("DistanceX", 0, 2, 23, 2, 0.5),
    Sketcher.Constraint("DistanceX", 15, 1, 15, 2, 0.156818),
    Sketcher.Constraint("DistanceY", 8, 1, 8, 2, 1.961649),
    Sketcher.Constraint("DistanceX", 18, 1, 18, 2, 0.151136),
    Sketcher.Constraint("DistanceX", -1, 1, 16, 2, 2.612522),
])
sketch10.setExpression("Constraints[51]", "Params.sketch10_width")
sketch10.setExpression("Constraints[55]", "Params.sketch10_width2")
sketch10.setExpression("Constraints[56]", "Params.sketch10_height")
sketch10.setExpression("Constraints[61]", "Params.sketch10_width3")
sketch10.setExpression("Constraints[62]", "Params.sketch10_height2")
pocket5 = body4.newObject("PartDesign::Pocket", "Pocket004")
pocket5.Profile = sketch10
pocket5.setExpression("Length", "Params.pocket5_length")
pocket5.Reversed = True

sketch11 = body4.newObject("Sketcher::SketchObject", "Sketch010")
sketch11.AttachmentSupport = (doc.getObject("XZ_Plane003"), [""])
sketch11.MapMode = "FlatFace"
sketch11.AttachmentOffset = App.Placement(App.Vector(0, 0, -3), App.Rotation())
sketch11.addGeometry([
    Part.LineSegment(App.Vector(1.5, 12.6, 0), App.Vector(1.5, 15, 0)),
    Part.LineSegment(App.Vector(1.5, 15, 0), App.Vector(3.1, 15, 0)),
    Part.LineSegment(App.Vector(3.1, 15, 0), App.Vector(3.1, 12.6, 0)),
    Part.LineSegment(App.Vector(3.1, 12.6, 0), App.Vector(1.5, 12.6, 0)),
    Part.LineSegment(App.Vector(-3, 12, 0), App.Vector(-3, 15, 0)),
    Part.LineSegment(App.Vector(-3, 15, 0), App.Vector(-1.4, 15, 0)),
    Part.LineSegment(App.Vector(-1.4, 15, 0), App.Vector(-1.4, 12, 0)),
    Part.LineSegment(App.Vector(-1.4, 12, 0), App.Vector(-3, 12, 0)),
], False)
sketch11.addConstraint([
    Sketcher.Constraint("Coincident", 0, 2, 1, 1),
    Sketcher.Constraint("Coincident", 1, 2, 2, 1),
    Sketcher.Constraint("Coincident", 2, 2, 3, 1),
    Sketcher.Constraint("Coincident", 3, 2, 0, 1),
    Sketcher.Constraint("Coincident", 4, 2, 5, 1),
    Sketcher.Constraint("Coincident", 5, 2, 6, 1),
    Sketcher.Constraint("Coincident", 6, 2, 7, 1),
    Sketcher.Constraint("Coincident", 7, 2, 4, 1),
    Sketcher.Constraint("Vertical", 0),
    Sketcher.Constraint("Horizontal", 1),
    Sketcher.Constraint("Vertical", 2),
    Sketcher.Constraint("Horizontal", 3),
    Sketcher.Constraint("Vertical", 4),
    Sketcher.Constraint("Horizontal", 5),
    Sketcher.Constraint("Vertical", 6),
    Sketcher.Constraint("Horizontal", 7),
    Sketcher.Constraint("Horizontal", 1, 2, 4, 2),
    Sketcher.Constraint("Equal", 3, 5),
    Sketcher.Constraint("DistanceY", 4, 1, 4, 2, 3.0),
    Sketcher.Constraint("DistanceY", -1, 1, 0, 2, 15.0),
    Sketcher.Constraint("DistanceY", 0, 1, 0, 2, 2.45),
    Sketcher.Constraint("DistanceX", 4, 2, 1, 2, 6.1),
    Sketcher.Constraint("DistanceX", 1, 1, 1, 2, 1.625),
    Sketcher.Constraint("DistanceX", -1, 1, 0, 2, 1.486783),
])
sketch11.setExpression("Constraints[18]", "Params.sketch11_height")
sketch11.setExpression("Constraints[20]", "Params.sketch11_height2")
pocket6 = body4.newObject("PartDesign::Pocket", "Pocket005")
pocket6.Profile = sketch11
pocket6.setExpression("Length", "Params.pocket6_length")
pocket6.Reversed = True
body5 = doc.addObject("PartDesign::Body", "Body004")

sketch12 = body5.newObject("Sketcher::SketchObject", "Sketch011")
sketch12.AttachmentSupport = (doc.getObject("XZ_Plane004"), [""])
sketch12.MapMode = "FlatFace"
sketch12.AttachmentOffset = App.Placement(App.Vector(0, 0, 3), App.Rotation())
sketch12.addGeometry(Part.Circle(App.Vector(0, 11.53, 0), App.Vector(0, 0, 1), 0.47), False)
sketch12.addConstraint([
    Sketcher.Constraint("PointOnObject", 0, 3, -2),
    Sketcher.Constraint("Diameter", 0, 0.95),
    Sketcher.Constraint("DistanceY", -1, 1, 0, 3, 11.530923),
])
sketch12.setExpression("Constraints[1]", "Params.sketch12_diameter")
pad6 = body5.newObject("PartDesign::Pad", "Pad005")
pad6.Profile = sketch12
pad6.setExpression("Length", "Params.pad6_length")
doc.recompute()

fillet2 = body5.newObject("PartDesign::Fillet", "Fillet001")
fillet2.Base = (pad6, edges_at(pad6, [(-0.475, -3.8, 11.531)]))
fillet2.setExpression("Radius", "Params.fillet2_radius")
body6 = doc.addObject("PartDesign::Body", "Body005")

sketch13 = body6.newObject("Sketcher::SketchObject", "Sketch012")
sketch13.AttachmentSupport = (doc.getObject("XZ_Plane005"), [""])
sketch13.MapMode = "FlatFace"
sketch13.AttachmentOffset = App.Placement(App.Vector(0, 0, 3), App.Rotation())
sketch13.addGeometry(Part.Circle(App.Vector(0, 4.53, 0), App.Vector(0, 0, 1), 0.47), False)
sketch13.addConstraint([
    Sketcher.Constraint("PointOnObject", 0, 3, -2),
    Sketcher.Constraint("Diameter", 0, 0.95),
    Sketcher.Constraint("DistanceY", -1, 1, 0, 3, 4.530923),
])
sketch13.setExpression("Constraints[1]", "Params.sketch13_diameter")
pad7 = body6.newObject("PartDesign::Pad", "Pad006")
pad7.Profile = sketch13
pad7.setExpression("Length", "Params.pad7_length")
doc.recompute()

fillet3 = body6.newObject("PartDesign::Fillet", "Fillet002")
fillet3.Base = (pad7, edges_at(pad7, [(-0.475, -3.8, 4.531)]))
fillet3.setExpression("Radius", "Params.fillet3_radius")
mirroring.Visibility = False

doc.recompute()
